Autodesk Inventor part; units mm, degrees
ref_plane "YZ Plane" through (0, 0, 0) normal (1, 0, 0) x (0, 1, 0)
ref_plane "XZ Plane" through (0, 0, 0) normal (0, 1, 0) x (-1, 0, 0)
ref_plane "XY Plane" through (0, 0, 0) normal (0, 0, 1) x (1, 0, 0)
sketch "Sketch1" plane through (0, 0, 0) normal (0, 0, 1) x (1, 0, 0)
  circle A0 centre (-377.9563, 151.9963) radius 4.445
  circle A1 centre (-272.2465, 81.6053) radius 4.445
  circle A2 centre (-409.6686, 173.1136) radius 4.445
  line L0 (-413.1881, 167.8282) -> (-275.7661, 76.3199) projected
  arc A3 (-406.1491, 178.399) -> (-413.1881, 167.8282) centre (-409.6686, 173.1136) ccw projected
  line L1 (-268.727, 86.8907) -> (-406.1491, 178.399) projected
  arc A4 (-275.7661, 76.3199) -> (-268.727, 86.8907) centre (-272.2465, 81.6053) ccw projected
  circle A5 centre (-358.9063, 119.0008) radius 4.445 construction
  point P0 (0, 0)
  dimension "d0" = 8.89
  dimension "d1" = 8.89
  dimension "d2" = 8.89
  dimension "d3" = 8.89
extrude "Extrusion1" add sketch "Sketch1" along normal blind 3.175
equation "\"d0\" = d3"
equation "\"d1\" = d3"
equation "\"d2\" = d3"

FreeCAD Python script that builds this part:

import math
import FreeCAD as App
import Part
import Sketcher
from FreeCAD import Vector
Q = App.Units.Quantity

doc = App.newDocument("Part")
body = doc.addObject("PartDesign::Body", "Body")

# Sketch on XY plane
sketch1 = body.newObject("Sketcher::SketchObject", "Sketch")
sketch1.AttachmentSupport = (doc.getObject("XY_Plane"), [""])
sketch1.MapMode = "FlatFace"
sketch1.addGeometry([
    Part.ArcOfCircle(Part.Circle(Vector(-409.6686, 173.1136, 0), Vector(0, 0, 1), 6.349987), math.radians(56.340714), math.radians(236.340714)),  # 0
    Part.LineSegment(Vector(-413.1881, 167.8282, 0), Vector(-275.7661, 76.3199, 0)),  # 1
    Part.ArcOfCircle(Part.Circle(Vector(-272.2465, 81.6053, 0), Vector(0, 0, 1), 6.350042), math.radians(-123.660038), math.radians(56.340714)),  # 2
    Part.LineSegment(Vector(-268.727, 86.8907, 0), Vector(-406.1491, 178.399, 0)),  # 3
    Part.Circle(Vector(-272.2465, 81.6053, 0), Vector(0, 0, 1), 4.445),  # 4
    Part.Circle(Vector(-377.9563, 151.9963, 0), Vector(0, 0, 1), 4.445),  # 5
    Part.Circle(Vector(-409.6686, 173.1136, 0), Vector(0, 0, 1), 4.445),  # 6
], False)
sketch1.addConstraint([
    Sketcher.Constraint("Tangent", 0, 2, 1, 1),
    Sketcher.Constraint("Tangent", 1, 2, 2, 1),
    Sketcher.Constraint("Tangent", 2, 2, 3, 1),
    Sketcher.Constraint("Tangent", 3, 2, 0, 1),
    Sketcher.Constraint("Coincident", 4, 3, 2, 3),
    Sketcher.Constraint("Coincident", 6, 3, 0, 3),
    Sketcher.Constraint("Equal", 0, 2),
    Sketcher.Constraint("Equal", 4, 5),
    Sketcher.Constraint("Equal", 5, 6),
    Sketcher.Constraint("Diameter", 4, Q("0.35 in")),
    Sketcher.Constraint("Radius", 0, Q("0.25 in")),
    Sketcher.Constraint("Angle", 1, Q("-33.6594 deg")),
    Sketcher.Constraint("DistanceY", -1, 1, 0, 3, Q("6.8155 in")),
    Sketcher.Constraint("DistanceY", -1, 1, 2, 3, Q("3.2128 in")),
    Sketcher.Constraint("DistanceY", -1, 1, 5, 3, Q("5.9841 in")),
    Sketcher.Constraint("DistanceX", 2, 2, -1, 1, Q("10.5798 in")),
    Sketcher.Constraint("DistanceX", 5, 3, 2, 3, Q("4.1618 in")),
])
pad1 = body.newObject("PartDesign::Pad", "Pad")
pad1.Profile = sketch1
pad1.Length = Q("0.125 in")

doc.recompute()
